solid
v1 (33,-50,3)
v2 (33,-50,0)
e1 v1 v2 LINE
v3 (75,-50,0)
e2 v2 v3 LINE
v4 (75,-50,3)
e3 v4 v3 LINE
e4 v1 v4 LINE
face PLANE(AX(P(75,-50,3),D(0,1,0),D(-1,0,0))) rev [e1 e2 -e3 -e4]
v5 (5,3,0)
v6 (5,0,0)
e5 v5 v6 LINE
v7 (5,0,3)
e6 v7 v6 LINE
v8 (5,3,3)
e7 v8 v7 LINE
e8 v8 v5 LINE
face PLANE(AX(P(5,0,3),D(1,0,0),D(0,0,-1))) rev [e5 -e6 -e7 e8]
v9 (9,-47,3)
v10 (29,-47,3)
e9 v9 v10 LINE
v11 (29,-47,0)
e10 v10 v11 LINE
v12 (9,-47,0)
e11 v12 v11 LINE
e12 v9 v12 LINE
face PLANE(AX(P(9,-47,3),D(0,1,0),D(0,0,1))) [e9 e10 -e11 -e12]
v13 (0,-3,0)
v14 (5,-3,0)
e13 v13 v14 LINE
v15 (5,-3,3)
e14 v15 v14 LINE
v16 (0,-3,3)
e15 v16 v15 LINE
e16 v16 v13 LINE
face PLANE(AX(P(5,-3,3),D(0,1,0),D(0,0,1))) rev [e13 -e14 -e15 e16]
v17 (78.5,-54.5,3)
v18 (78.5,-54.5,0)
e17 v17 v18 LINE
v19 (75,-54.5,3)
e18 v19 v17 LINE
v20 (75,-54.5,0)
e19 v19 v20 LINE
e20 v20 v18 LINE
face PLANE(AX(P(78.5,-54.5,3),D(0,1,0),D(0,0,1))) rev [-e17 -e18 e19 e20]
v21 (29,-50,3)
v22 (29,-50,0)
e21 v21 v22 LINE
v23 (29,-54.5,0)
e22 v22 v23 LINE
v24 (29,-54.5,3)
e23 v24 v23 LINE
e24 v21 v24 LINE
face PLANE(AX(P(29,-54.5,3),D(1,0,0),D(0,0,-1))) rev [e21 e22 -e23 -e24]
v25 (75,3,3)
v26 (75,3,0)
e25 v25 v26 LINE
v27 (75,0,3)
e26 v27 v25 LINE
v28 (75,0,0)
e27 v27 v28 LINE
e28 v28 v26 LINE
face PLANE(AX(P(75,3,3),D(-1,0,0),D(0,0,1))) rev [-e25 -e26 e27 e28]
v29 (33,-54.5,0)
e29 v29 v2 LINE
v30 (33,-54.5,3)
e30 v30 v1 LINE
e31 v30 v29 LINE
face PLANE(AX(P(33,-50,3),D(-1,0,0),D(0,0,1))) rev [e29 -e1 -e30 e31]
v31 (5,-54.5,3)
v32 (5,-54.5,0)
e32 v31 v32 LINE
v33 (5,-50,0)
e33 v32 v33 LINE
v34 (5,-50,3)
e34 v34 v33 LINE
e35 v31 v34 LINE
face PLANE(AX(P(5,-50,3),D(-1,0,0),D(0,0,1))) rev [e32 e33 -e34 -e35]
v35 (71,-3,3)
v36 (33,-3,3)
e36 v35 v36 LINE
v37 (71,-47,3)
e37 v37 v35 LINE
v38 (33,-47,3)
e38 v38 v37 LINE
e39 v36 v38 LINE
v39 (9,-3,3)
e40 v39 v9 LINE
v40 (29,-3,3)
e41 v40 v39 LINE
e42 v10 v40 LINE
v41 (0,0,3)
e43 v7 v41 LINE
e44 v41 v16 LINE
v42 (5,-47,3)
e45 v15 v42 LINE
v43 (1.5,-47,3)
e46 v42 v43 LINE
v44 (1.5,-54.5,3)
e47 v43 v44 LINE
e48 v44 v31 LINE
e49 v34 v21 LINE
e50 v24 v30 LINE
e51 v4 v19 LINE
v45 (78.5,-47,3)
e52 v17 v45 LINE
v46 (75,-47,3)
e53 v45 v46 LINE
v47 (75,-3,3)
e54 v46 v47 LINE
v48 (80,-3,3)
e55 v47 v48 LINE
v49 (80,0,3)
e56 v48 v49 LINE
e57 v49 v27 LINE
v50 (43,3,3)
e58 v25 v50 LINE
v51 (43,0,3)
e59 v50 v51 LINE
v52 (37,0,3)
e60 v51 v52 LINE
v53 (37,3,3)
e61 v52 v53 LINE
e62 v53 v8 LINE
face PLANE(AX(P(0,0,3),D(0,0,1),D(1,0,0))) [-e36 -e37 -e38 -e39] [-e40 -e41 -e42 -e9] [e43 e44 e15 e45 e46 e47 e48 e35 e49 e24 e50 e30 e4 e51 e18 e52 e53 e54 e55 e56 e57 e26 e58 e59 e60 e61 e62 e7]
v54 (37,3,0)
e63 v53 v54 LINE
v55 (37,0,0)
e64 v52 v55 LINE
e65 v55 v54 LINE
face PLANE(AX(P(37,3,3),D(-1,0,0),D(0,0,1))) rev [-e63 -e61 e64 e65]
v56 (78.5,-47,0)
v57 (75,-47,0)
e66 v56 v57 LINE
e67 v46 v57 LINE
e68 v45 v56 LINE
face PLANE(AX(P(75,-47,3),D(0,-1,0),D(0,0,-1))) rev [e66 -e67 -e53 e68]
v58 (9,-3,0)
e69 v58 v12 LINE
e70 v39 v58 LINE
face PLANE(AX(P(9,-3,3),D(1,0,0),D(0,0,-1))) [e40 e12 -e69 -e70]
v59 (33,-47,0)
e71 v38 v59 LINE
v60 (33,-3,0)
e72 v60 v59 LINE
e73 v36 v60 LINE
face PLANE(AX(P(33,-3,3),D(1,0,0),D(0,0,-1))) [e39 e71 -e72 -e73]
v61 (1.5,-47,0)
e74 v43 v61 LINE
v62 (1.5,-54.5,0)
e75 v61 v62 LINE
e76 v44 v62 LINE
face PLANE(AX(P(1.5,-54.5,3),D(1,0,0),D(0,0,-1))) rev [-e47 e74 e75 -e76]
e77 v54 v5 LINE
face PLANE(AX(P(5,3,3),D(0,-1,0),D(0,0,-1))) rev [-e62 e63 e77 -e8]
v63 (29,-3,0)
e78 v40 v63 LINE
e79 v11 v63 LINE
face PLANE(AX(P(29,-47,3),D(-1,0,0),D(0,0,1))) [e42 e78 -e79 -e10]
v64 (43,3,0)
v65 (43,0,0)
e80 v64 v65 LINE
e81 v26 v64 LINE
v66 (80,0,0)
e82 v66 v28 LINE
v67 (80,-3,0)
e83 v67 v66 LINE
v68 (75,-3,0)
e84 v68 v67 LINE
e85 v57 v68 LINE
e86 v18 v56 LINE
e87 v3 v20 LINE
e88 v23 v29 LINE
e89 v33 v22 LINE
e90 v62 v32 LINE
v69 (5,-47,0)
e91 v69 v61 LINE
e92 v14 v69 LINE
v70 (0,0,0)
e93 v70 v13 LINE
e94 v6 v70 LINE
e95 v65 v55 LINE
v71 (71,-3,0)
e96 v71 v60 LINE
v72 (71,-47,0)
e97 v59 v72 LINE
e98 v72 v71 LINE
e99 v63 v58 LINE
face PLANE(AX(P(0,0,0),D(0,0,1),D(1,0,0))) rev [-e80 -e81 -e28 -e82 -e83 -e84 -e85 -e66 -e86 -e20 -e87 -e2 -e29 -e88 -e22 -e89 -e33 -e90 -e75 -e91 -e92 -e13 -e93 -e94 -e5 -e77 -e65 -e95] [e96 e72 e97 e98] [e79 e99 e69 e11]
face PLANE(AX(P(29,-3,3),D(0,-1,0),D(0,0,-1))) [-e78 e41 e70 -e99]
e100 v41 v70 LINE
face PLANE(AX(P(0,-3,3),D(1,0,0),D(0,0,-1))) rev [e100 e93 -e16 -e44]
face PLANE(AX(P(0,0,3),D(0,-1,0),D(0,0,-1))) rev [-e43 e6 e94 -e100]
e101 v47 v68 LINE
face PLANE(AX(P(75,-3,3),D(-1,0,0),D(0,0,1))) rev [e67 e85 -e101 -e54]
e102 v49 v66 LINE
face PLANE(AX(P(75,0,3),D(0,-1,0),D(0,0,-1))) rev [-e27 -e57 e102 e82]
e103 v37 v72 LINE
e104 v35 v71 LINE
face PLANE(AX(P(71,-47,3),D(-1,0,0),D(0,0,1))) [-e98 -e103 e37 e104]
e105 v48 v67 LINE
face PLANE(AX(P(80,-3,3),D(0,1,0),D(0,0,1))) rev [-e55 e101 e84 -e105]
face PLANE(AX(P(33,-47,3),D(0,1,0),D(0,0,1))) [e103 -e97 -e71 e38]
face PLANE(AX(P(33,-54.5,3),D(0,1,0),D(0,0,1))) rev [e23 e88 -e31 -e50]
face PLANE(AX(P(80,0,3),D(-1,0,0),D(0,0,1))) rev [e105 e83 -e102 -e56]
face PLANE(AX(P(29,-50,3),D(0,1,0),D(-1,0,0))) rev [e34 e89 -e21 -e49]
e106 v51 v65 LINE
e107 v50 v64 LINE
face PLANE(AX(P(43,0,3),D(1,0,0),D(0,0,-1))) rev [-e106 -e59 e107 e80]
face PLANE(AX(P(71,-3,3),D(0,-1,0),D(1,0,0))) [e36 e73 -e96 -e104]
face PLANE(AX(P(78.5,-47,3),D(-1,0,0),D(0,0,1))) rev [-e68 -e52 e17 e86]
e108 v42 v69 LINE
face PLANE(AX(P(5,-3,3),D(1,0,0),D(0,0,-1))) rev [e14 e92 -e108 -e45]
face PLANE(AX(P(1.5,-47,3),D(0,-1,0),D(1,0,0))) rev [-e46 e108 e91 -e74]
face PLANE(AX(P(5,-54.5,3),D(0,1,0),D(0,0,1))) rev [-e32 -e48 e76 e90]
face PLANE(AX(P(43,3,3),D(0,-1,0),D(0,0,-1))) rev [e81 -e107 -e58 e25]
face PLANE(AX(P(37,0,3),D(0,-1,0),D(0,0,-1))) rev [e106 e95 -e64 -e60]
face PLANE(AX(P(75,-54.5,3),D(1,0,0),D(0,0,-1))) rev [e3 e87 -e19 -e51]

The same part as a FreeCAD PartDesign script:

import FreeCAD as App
import Part
import Sketcher

V = App.Vector


def add_polygon(sketch, points):
    """Adds a closed chain of lines whose ends are joined by coincident constraints."""
    first, n = sketch.GeometryCount, len(points)
    for a, b in zip(points, points[1:] + points[:1]):
        sketch.addGeometry(Part.LineSegment(App.Vector(*a, 0), App.Vector(*b, 0)), False)
    for i in range(n):
        sketch.addConstraint(Sketcher.Constraint("Coincident", first + i, 2, first + (i + 1) % n, 1))

doc = App.newDocument("Part")
params = doc.addObject("Spreadsheet::Sheet", "Params")
for row, (alias, value) in enumerate([
    ("sketch1_width", "5 mm"),
    ("sketch1_width2", "24 mm"),
    ("sketch1_width3", "4 mm"),
    ("sketch1_width4", "42 mm"),
    ("sketch1_width5", "32 mm"),
    ("pad1_length", "3 mm"),
], start=1):
    params.set(f"A{row}", alias)
    params.set(f"B{row}", "=" + value)
    params.setAlias(f"B{row}", alias)

body = doc.addObject("PartDesign::Body", "Body")

# Sketch on XY plane
sketch1 = doc.addObject("Sketcher::SketchObject", "Sketch")
body.addObject(sketch1)
sketch1.AttachmentSupport = (doc.XY_Plane, [""])
sketch1.MapMode = "FlatFace"
add_polygon(sketch1, [(0, -3), (5, -3), (5, -47), (1.5, -47), (1.5, -54.5), (5, -54.5), (5, -50), (29, -50), (29, -54.5), (33, -54.5), (33, -50), (75, -50), (75, -54.5), (78.5, -54.5), (78.5, -47), (75, -47), (75, -3), (80, -3), (80, 0), (75, 0), (75, 3), (43, 3), (43, 0), (37, 0), (37, 3), (5, 3), (5, 0), (0, 0)])  # lines 0-27
add_polygon(sketch1, [(33, -47), (33, -3), (71, -3), (71, -47)])  # lines 28-31
add_polygon(sketch1, [(9, -47), (9, -3), (29, -3), (29, -47)])  # lines 32-35
sketch1.addConstraint([
    Sketcher.Constraint("Horizontal", 0),
    Sketcher.Constraint("Vertical", 1),
    Sketcher.Constraint("Horizontal", 2),
    Sketcher.Constraint("Vertical", 3),
    Sketcher.Constraint("Horizontal", 4),
    Sketcher.Constraint("Vertical", 5),
    Sketcher.Constraint("Horizontal", 6),
    Sketcher.Constraint("Vertical", 7),
    Sketcher.Constraint("Horizontal", 8),
    Sketcher.Constraint("Vertical", 9),
    Sketcher.Constraint("Horizontal", 10),
    Sketcher.Constraint("Vertical", 11),
    Sketcher.Constraint("Horizontal", 12),
    Sketcher.Constraint("Vertical", 13),
    Sketcher.Constraint("Horizontal", 14),
    Sketcher.Constraint("Vertical", 15),
    Sketcher.Constraint("Horizontal", 16),
    Sketcher.Constraint("Vertical", 17),
    Sketcher.Constraint("Horizontal", 18),
    Sketcher.Constraint("Vertical", 19),
    Sketcher.Constraint("Horizontal", 20),
    Sketcher.Constraint("Vertical", 21),
    Sketcher.Constraint("Horizontal", 22),
    Sketcher.Constraint("Vertical", 23),
    Sketcher.Constraint("Horizontal", 24),
    Sketcher.Constraint("Vertical", 25),
    Sketcher.Constraint("Horizontal", 26),
    Sketcher.Constraint("Vertical", 27),
    Sketcher.Constraint("Vertical", 28),
    Sketcher.Constraint("Horizontal", 29),
    Sketcher.Constraint("Vertical", 30),
    Sketcher.Constraint("Horizontal", 31),
    Sketcher.Constraint("Vertical", 32),
    Sketcher.Constraint("Horizontal", 33),
    Sketcher.Constraint("Vertical", 34),
    Sketcher.Constraint("Horizontal", 35),
    Sketcher.Constraint("Coincident", 26, 2, -1, 1),
    Sketcher.Constraint("Symmetric", 15, 2, 19, 2, -1),
    Sketcher.Constraint("Symmetric", 0, 2, 24, 2, -1),
    Sketcher.Constraint("PointOnObject", 17, 2, -1),
    Sketcher.Constraint("PointOnObject", 21, 2, -1),
    Sketcher.Constraint("Horizontal", 4, 2, 7, 2),
    Sketcher.Constraint("Horizontal", 6, 2, 9, 2),
    Sketcher.Constraint("Horizontal", 8, 2, 11, 2),
    Sketcher.Constraint("Horizontal", 2, 2, 13, 2),
    Sketcher.Constraint("Horizontal", 0, 2, 15, 2),
    Sketcher.Constraint("Horizontal", 27, 2, 28, 2),
    Sketcher.Constraint("Horizontal", 14, 2, 30, 2),
    Sketcher.Constraint("Horizontal", 29, 2, 32, 2),
    Sketcher.Constraint("Horizontal", 31, 2, 34, 2),
    Sketcher.Constraint("Vertical", 1, 2, 4, 2),
    Sketcher.Constraint("Vertical", 11, 2, 14, 2),
    Sketcher.Constraint("Vertical", 9, 2, 28, 2),
    Sketcher.Constraint("Vertical", 7, 2, 33, 2),
    Sketcher.Constraint("Equal", 4, 12),
    Sketcher.Constraint("Equal", 0, 16),
    Sketcher.Constraint("Equal", 20, 24),
    Sketcher.Constraint("DistanceX", 0, 1, 0, 2, 5.0),
    Sketcher.Constraint("DistanceX", 6, 1, 6, 2, 24.0),
    Sketcher.Constraint("DistanceX", 8, 1, 8, 2, 4.0),
    Sketcher.Constraint("DistanceX", 10, 1, 10, 2, 42.0),
    Sketcher.Constraint("DistanceX", 20, 2, 20, 1, 32.0),
    Sketcher.Constraint("DistanceX", 29, 1, 29, 2, 38.0),
    Sketcher.Constraint("DistanceX", 33, 1, 33, 2, 20.0),
    Sketcher.Constraint("DistanceY", 1, 2, 1, 1, 44.0),
    Sketcher.Constraint("DistanceY", 17, 1, 17, 2, 3.0),
    Sketcher.Constraint("DistanceX", 2, 2, 2, 1, 3.5),
    Sketcher.Constraint("DistanceY", 3, 2, 3, 1, 7.5),
    Sketcher.Constraint("DistanceY", 5, 1, 5, 2, 4.5),
])
sketch1.setExpression("Constraints[93]", "Params.sketch1_width")
sketch1.setExpression("Constraints[94]", "Params.sketch1_width2")
sketch1.setExpression("Constraints[95]", "Params.sketch1_width3")
sketch1.setExpression("Constraints[96]", "Params.sketch1_width4")
sketch1.setExpression("Constraints[97]", "Params.sketch1_width5")
pad1 = doc.addObject("PartDesign::Pad", "Pad")
body.addObject(pad1)
pad1.Profile = sketch1
pad1.setExpression("Length", "Params.pad1_length")

doc.recompute()
